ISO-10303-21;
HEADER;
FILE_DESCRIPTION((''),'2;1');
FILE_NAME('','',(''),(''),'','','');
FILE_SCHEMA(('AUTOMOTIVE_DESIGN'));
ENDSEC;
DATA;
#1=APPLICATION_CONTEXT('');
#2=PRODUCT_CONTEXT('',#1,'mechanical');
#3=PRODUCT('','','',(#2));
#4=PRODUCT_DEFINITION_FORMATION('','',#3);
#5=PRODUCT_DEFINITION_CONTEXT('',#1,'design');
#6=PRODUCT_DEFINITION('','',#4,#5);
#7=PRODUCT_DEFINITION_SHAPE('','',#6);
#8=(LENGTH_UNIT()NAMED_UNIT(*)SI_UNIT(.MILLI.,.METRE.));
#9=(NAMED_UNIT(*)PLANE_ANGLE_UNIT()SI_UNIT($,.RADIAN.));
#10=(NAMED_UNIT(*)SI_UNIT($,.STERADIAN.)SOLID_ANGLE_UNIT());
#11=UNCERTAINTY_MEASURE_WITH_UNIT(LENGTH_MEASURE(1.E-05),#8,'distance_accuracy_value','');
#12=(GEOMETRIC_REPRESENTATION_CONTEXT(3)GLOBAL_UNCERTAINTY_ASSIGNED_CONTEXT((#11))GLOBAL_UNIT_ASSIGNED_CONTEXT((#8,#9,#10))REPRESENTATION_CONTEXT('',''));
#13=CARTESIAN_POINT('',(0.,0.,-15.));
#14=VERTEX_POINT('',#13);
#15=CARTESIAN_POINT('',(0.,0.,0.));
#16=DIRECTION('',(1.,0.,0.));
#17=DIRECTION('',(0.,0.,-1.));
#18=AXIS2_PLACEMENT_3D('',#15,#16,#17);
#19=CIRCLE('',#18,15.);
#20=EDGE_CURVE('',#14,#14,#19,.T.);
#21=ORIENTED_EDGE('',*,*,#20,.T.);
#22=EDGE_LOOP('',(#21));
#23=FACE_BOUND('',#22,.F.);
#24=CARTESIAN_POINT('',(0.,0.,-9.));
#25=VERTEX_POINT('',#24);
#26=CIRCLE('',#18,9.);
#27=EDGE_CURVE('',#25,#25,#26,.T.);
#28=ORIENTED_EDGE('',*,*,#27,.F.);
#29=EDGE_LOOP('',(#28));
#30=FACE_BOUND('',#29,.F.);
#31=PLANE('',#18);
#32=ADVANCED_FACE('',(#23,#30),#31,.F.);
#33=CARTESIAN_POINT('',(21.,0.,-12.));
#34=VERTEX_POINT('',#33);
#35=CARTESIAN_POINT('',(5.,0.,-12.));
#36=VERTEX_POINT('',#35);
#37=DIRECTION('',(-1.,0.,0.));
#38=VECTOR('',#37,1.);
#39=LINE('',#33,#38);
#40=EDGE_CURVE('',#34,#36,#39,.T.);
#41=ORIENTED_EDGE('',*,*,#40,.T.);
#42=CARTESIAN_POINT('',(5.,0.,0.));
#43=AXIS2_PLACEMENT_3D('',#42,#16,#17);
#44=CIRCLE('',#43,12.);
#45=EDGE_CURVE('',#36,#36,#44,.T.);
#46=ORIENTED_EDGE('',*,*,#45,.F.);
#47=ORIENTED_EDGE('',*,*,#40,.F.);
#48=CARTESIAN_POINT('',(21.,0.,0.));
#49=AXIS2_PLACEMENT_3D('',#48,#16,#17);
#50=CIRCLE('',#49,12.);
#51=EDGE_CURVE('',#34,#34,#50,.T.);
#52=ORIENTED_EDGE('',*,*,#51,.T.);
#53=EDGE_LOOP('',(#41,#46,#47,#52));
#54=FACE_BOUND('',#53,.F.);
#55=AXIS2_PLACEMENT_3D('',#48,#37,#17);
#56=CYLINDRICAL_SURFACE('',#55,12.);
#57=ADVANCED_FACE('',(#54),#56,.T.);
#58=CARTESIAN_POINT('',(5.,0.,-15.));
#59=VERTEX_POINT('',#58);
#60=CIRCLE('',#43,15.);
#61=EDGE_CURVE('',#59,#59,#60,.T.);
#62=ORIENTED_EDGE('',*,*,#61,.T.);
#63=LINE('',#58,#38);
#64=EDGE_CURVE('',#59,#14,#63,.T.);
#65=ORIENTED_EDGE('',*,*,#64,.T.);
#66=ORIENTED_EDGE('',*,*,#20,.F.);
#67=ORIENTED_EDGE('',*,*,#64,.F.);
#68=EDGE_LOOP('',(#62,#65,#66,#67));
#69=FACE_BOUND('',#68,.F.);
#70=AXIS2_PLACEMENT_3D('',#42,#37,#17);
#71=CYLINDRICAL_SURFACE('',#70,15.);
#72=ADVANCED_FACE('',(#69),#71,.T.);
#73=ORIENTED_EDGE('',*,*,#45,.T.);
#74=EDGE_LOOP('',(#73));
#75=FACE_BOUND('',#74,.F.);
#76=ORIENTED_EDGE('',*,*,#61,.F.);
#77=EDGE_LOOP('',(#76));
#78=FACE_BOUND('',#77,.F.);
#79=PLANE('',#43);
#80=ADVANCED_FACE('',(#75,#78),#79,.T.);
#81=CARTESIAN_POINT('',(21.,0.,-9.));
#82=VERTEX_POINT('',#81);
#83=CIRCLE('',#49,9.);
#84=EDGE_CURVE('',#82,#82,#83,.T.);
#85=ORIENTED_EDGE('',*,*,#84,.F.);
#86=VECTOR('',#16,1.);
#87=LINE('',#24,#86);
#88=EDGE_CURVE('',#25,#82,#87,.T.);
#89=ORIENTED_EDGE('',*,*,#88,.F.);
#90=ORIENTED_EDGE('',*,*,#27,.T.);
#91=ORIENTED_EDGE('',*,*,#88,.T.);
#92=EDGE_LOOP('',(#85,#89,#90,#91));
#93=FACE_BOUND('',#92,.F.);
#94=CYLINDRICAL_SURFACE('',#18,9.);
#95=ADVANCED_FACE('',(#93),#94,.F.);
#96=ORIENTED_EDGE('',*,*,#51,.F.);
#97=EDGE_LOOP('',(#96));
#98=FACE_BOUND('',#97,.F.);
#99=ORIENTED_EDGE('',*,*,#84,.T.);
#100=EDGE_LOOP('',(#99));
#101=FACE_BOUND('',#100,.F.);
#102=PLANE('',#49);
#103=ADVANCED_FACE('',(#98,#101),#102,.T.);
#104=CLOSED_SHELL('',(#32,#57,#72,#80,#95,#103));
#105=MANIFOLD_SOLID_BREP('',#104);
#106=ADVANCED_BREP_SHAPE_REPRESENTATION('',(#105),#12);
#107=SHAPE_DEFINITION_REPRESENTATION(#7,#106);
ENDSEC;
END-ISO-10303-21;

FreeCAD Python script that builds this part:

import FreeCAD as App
import Part
import Sketcher

V = App.Vector
Q = App.Units.Quantity


def add_polygon(sketch, points):
    """Adds a closed chain of lines whose ends are joined by coincident constraints."""
    first, n = sketch.GeometryCount, len(points)
    for a, b in zip(points, points[1:] + points[:1]):
        sketch.addGeometry(Part.LineSegment(App.Vector(*a, 0), App.Vector(*b, 0)), False)
    for i in range(n):
        sketch.addConstraint(Sketcher.Constraint("Coincident", first + i, 2, first + (i + 1) % n, 1))

doc = App.newDocument("Part")
body = doc.addObject("PartDesign::Body", "Body")

# Sketch on XZ plane
sketch1 = doc.addObject("Sketcher::SketchObject", "Sketch")
body.addObject(sketch1)
sketch1.AttachmentSupport = (doc.XZ_Plane, [""])
sketch1.MapMode = "FlatFace"
add_polygon(sketch1, [(0, -15), (0, -9), (21, -9), (21, -12), (5, -12), (5, -15)])  # lines 0-5
sketch1.addConstraint(Sketcher.Constraint("Vertical", 0))
sketch1.addConstraint(Sketcher.Constraint("Horizontal", 1))
sketch1.addConstraint(Sketcher.Constraint("Vertical", 2))
sketch1.addConstraint(Sketcher.Constraint("Horizontal", 3))
sketch1.addConstraint(Sketcher.Constraint("Vertical", 4))
sketch1.addConstraint(Sketcher.Constraint("Horizontal", 5))
sketch1.addConstraint(Sketcher.Constraint("PointOnObject", 0, 2, -2))
sketch1.addConstraint(Sketcher.Constraint("Equal", 2, 4))
sketch1.addConstraint(Sketcher.Constraint("DistanceX", 1, 1, 1, 2, Q("21 mm")))
sketch1.addConstraint(Sketcher.Constraint("DistanceX", 3, 2, 3, 1, Q("16 mm")))
sketch1.addConstraint(Sketcher.Constraint("DistanceY", 0, 1, 0, 2, Q("6 mm")))
sketch1.addConstraint(Sketcher.Constraint("DistanceY", 0, 2, -1, 1, Q("9 mm")))
revolution = doc.addObject("PartDesign::Revolution", "Revolution")
body.addObject(revolution)
revolution.Profile = sketch1
revolution.ReferenceAxis = (sketch1, ["H_Axis"])
revolution.Angle = 360

doc.recompute()
